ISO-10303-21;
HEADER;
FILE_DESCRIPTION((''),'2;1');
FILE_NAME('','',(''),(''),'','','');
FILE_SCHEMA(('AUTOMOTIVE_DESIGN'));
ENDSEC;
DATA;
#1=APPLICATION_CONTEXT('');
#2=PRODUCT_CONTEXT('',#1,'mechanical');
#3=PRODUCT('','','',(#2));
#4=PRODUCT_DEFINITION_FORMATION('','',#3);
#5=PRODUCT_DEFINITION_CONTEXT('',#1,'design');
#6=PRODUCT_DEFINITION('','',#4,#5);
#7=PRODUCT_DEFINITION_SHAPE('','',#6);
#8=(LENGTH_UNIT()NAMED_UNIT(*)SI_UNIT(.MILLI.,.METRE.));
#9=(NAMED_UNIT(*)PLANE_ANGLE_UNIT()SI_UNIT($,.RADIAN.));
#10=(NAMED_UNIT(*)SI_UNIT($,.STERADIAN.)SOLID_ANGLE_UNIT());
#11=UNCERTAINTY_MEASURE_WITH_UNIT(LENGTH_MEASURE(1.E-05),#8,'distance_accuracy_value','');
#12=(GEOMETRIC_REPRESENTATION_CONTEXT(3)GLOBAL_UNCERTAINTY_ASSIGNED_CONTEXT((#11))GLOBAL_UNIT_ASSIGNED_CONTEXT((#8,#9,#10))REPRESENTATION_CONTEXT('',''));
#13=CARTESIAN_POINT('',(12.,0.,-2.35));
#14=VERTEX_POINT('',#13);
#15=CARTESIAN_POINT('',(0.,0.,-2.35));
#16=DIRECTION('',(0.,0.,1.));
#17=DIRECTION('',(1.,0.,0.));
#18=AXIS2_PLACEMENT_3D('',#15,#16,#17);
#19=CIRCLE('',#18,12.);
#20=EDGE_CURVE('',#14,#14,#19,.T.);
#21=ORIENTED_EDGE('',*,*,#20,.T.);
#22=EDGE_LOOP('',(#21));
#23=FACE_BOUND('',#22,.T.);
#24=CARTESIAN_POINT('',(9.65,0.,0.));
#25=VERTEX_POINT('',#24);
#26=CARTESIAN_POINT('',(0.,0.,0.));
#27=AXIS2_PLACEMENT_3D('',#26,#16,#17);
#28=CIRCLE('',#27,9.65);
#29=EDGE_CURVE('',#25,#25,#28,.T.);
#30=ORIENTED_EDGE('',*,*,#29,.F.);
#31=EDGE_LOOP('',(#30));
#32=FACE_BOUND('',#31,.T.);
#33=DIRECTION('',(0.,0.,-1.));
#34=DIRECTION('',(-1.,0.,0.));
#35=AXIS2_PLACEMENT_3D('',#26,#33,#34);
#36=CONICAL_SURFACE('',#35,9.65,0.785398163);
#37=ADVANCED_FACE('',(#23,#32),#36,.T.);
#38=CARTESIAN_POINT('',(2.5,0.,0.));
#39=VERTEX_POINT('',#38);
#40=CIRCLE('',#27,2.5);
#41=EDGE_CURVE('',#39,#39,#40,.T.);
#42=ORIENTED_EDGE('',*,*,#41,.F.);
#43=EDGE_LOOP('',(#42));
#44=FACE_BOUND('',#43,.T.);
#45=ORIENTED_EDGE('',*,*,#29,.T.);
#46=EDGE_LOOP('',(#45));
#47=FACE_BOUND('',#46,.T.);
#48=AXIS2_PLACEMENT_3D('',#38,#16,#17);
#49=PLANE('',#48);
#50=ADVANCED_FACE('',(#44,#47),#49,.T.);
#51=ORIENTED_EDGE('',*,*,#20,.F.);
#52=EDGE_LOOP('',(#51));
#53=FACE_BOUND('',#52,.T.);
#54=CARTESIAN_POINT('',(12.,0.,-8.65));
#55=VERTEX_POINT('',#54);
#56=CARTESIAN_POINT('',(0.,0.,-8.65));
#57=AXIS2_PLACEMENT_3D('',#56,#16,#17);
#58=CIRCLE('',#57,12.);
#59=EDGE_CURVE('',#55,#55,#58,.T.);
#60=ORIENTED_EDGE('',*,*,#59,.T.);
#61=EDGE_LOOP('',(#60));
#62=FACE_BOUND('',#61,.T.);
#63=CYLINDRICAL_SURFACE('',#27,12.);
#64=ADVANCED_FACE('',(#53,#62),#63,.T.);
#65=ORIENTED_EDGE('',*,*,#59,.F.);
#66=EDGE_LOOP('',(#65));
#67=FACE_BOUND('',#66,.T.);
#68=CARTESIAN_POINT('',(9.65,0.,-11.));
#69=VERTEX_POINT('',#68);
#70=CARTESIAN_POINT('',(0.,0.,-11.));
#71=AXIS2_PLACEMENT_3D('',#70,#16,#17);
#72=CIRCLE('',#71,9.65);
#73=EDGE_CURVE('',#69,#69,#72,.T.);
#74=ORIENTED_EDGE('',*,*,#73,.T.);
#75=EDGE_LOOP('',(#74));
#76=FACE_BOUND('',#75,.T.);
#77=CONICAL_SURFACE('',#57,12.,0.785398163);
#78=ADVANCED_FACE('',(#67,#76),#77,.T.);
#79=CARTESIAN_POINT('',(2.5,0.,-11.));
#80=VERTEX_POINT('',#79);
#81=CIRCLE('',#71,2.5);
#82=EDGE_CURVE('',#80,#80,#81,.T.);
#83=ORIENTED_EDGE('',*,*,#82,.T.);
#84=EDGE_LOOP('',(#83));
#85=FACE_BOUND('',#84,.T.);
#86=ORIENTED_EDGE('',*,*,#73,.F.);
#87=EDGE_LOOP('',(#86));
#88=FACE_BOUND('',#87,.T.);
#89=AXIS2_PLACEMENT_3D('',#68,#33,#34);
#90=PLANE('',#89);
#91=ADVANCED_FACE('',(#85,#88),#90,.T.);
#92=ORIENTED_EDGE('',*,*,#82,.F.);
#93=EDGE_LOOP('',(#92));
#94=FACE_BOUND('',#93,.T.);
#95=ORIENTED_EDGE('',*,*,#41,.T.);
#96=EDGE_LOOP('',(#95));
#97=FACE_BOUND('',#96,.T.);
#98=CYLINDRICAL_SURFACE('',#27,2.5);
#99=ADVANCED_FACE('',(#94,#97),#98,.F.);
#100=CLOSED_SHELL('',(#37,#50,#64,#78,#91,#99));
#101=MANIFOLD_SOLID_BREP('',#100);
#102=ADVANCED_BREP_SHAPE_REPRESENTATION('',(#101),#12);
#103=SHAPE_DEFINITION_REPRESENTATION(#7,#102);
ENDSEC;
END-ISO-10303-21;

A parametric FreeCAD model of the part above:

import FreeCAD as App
import Part
import Sketcher
Q = App.Units.Quantity

doc = App.newDocument("Part")
body = doc.addObject("PartDesign::Body", "Body")

sketch1 = body.newObject("Sketcher::SketchObject", "Sketch")
sketch1.AttachmentSupport = (doc.getObject("XZ_Plane"), [""])
sketch1.MapMode = "FlatFace"
sketch1.addGeometry([
    Part.LineSegment(App.Vector(2.5, 0, 0), App.Vector(9.7, 0, 0)),
    Part.LineSegment(App.Vector(9.7, 0, 0), App.Vector(12, -2.4, 0)),
    Part.LineSegment(App.Vector(12, -2.4, 0), App.Vector(12, -8.7, 0)),
    Part.LineSegment(App.Vector(12, -8.7, 0), App.Vector(9.7, -11, 0)),
    Part.LineSegment(App.Vector(9.7, -11, 0), App.Vector(2.5, -11, 0)),
    Part.LineSegment(App.Vector(2.5, -11, 0), App.Vector(2.5, 0, 0)),
], False)
sketch1.addConstraint([
    Sketcher.Constraint("Coincident", 0, 2, 1, 1),
    Sketcher.Constraint("Coincident", 1, 2, 2, 1),
    Sketcher.Constraint("Coincident", 2, 2, 3, 1),
    Sketcher.Constraint("Coincident", 3, 2, 4, 1),
    Sketcher.Constraint("Coincident", 4, 2, 5, 1),
    Sketcher.Constraint("Coincident", 5, 2, 0, 1),
    Sketcher.Constraint("Horizontal", 0),
    Sketcher.Constraint("Vertical", 2),
    Sketcher.Constraint("Horizontal", 4),
    Sketcher.Constraint("Vertical", 5),
    Sketcher.Constraint("PointOnObject", 0, 2, -1),
    Sketcher.Constraint("Perpendicular", 1, 3),
    Sketcher.Constraint("Vertical", 0, 2, 3, 2),
    Sketcher.Constraint("Equal", 1, 3),
    Sketcher.Constraint("DistanceY", 5, 1, 5, 2, Q("11 mm")),
    Sketcher.Constraint("DistanceY", 2, 2, 2, 1, Q("6.3 mm")),
    Sketcher.Constraint("DistanceX", -1, 1, 1, 2, Q("12 mm")),
    Sketcher.Constraint("DistanceX", 0, 1, 0, 2, Q("7.15 mm")),
])
revolution = body.newObject("PartDesign::Revolution", "Revolution")
revolution.Profile = sketch1
revolution.ReferenceAxis = (sketch1, ["V_Axis"])
revolution.Angle = 360

doc.recompute()
